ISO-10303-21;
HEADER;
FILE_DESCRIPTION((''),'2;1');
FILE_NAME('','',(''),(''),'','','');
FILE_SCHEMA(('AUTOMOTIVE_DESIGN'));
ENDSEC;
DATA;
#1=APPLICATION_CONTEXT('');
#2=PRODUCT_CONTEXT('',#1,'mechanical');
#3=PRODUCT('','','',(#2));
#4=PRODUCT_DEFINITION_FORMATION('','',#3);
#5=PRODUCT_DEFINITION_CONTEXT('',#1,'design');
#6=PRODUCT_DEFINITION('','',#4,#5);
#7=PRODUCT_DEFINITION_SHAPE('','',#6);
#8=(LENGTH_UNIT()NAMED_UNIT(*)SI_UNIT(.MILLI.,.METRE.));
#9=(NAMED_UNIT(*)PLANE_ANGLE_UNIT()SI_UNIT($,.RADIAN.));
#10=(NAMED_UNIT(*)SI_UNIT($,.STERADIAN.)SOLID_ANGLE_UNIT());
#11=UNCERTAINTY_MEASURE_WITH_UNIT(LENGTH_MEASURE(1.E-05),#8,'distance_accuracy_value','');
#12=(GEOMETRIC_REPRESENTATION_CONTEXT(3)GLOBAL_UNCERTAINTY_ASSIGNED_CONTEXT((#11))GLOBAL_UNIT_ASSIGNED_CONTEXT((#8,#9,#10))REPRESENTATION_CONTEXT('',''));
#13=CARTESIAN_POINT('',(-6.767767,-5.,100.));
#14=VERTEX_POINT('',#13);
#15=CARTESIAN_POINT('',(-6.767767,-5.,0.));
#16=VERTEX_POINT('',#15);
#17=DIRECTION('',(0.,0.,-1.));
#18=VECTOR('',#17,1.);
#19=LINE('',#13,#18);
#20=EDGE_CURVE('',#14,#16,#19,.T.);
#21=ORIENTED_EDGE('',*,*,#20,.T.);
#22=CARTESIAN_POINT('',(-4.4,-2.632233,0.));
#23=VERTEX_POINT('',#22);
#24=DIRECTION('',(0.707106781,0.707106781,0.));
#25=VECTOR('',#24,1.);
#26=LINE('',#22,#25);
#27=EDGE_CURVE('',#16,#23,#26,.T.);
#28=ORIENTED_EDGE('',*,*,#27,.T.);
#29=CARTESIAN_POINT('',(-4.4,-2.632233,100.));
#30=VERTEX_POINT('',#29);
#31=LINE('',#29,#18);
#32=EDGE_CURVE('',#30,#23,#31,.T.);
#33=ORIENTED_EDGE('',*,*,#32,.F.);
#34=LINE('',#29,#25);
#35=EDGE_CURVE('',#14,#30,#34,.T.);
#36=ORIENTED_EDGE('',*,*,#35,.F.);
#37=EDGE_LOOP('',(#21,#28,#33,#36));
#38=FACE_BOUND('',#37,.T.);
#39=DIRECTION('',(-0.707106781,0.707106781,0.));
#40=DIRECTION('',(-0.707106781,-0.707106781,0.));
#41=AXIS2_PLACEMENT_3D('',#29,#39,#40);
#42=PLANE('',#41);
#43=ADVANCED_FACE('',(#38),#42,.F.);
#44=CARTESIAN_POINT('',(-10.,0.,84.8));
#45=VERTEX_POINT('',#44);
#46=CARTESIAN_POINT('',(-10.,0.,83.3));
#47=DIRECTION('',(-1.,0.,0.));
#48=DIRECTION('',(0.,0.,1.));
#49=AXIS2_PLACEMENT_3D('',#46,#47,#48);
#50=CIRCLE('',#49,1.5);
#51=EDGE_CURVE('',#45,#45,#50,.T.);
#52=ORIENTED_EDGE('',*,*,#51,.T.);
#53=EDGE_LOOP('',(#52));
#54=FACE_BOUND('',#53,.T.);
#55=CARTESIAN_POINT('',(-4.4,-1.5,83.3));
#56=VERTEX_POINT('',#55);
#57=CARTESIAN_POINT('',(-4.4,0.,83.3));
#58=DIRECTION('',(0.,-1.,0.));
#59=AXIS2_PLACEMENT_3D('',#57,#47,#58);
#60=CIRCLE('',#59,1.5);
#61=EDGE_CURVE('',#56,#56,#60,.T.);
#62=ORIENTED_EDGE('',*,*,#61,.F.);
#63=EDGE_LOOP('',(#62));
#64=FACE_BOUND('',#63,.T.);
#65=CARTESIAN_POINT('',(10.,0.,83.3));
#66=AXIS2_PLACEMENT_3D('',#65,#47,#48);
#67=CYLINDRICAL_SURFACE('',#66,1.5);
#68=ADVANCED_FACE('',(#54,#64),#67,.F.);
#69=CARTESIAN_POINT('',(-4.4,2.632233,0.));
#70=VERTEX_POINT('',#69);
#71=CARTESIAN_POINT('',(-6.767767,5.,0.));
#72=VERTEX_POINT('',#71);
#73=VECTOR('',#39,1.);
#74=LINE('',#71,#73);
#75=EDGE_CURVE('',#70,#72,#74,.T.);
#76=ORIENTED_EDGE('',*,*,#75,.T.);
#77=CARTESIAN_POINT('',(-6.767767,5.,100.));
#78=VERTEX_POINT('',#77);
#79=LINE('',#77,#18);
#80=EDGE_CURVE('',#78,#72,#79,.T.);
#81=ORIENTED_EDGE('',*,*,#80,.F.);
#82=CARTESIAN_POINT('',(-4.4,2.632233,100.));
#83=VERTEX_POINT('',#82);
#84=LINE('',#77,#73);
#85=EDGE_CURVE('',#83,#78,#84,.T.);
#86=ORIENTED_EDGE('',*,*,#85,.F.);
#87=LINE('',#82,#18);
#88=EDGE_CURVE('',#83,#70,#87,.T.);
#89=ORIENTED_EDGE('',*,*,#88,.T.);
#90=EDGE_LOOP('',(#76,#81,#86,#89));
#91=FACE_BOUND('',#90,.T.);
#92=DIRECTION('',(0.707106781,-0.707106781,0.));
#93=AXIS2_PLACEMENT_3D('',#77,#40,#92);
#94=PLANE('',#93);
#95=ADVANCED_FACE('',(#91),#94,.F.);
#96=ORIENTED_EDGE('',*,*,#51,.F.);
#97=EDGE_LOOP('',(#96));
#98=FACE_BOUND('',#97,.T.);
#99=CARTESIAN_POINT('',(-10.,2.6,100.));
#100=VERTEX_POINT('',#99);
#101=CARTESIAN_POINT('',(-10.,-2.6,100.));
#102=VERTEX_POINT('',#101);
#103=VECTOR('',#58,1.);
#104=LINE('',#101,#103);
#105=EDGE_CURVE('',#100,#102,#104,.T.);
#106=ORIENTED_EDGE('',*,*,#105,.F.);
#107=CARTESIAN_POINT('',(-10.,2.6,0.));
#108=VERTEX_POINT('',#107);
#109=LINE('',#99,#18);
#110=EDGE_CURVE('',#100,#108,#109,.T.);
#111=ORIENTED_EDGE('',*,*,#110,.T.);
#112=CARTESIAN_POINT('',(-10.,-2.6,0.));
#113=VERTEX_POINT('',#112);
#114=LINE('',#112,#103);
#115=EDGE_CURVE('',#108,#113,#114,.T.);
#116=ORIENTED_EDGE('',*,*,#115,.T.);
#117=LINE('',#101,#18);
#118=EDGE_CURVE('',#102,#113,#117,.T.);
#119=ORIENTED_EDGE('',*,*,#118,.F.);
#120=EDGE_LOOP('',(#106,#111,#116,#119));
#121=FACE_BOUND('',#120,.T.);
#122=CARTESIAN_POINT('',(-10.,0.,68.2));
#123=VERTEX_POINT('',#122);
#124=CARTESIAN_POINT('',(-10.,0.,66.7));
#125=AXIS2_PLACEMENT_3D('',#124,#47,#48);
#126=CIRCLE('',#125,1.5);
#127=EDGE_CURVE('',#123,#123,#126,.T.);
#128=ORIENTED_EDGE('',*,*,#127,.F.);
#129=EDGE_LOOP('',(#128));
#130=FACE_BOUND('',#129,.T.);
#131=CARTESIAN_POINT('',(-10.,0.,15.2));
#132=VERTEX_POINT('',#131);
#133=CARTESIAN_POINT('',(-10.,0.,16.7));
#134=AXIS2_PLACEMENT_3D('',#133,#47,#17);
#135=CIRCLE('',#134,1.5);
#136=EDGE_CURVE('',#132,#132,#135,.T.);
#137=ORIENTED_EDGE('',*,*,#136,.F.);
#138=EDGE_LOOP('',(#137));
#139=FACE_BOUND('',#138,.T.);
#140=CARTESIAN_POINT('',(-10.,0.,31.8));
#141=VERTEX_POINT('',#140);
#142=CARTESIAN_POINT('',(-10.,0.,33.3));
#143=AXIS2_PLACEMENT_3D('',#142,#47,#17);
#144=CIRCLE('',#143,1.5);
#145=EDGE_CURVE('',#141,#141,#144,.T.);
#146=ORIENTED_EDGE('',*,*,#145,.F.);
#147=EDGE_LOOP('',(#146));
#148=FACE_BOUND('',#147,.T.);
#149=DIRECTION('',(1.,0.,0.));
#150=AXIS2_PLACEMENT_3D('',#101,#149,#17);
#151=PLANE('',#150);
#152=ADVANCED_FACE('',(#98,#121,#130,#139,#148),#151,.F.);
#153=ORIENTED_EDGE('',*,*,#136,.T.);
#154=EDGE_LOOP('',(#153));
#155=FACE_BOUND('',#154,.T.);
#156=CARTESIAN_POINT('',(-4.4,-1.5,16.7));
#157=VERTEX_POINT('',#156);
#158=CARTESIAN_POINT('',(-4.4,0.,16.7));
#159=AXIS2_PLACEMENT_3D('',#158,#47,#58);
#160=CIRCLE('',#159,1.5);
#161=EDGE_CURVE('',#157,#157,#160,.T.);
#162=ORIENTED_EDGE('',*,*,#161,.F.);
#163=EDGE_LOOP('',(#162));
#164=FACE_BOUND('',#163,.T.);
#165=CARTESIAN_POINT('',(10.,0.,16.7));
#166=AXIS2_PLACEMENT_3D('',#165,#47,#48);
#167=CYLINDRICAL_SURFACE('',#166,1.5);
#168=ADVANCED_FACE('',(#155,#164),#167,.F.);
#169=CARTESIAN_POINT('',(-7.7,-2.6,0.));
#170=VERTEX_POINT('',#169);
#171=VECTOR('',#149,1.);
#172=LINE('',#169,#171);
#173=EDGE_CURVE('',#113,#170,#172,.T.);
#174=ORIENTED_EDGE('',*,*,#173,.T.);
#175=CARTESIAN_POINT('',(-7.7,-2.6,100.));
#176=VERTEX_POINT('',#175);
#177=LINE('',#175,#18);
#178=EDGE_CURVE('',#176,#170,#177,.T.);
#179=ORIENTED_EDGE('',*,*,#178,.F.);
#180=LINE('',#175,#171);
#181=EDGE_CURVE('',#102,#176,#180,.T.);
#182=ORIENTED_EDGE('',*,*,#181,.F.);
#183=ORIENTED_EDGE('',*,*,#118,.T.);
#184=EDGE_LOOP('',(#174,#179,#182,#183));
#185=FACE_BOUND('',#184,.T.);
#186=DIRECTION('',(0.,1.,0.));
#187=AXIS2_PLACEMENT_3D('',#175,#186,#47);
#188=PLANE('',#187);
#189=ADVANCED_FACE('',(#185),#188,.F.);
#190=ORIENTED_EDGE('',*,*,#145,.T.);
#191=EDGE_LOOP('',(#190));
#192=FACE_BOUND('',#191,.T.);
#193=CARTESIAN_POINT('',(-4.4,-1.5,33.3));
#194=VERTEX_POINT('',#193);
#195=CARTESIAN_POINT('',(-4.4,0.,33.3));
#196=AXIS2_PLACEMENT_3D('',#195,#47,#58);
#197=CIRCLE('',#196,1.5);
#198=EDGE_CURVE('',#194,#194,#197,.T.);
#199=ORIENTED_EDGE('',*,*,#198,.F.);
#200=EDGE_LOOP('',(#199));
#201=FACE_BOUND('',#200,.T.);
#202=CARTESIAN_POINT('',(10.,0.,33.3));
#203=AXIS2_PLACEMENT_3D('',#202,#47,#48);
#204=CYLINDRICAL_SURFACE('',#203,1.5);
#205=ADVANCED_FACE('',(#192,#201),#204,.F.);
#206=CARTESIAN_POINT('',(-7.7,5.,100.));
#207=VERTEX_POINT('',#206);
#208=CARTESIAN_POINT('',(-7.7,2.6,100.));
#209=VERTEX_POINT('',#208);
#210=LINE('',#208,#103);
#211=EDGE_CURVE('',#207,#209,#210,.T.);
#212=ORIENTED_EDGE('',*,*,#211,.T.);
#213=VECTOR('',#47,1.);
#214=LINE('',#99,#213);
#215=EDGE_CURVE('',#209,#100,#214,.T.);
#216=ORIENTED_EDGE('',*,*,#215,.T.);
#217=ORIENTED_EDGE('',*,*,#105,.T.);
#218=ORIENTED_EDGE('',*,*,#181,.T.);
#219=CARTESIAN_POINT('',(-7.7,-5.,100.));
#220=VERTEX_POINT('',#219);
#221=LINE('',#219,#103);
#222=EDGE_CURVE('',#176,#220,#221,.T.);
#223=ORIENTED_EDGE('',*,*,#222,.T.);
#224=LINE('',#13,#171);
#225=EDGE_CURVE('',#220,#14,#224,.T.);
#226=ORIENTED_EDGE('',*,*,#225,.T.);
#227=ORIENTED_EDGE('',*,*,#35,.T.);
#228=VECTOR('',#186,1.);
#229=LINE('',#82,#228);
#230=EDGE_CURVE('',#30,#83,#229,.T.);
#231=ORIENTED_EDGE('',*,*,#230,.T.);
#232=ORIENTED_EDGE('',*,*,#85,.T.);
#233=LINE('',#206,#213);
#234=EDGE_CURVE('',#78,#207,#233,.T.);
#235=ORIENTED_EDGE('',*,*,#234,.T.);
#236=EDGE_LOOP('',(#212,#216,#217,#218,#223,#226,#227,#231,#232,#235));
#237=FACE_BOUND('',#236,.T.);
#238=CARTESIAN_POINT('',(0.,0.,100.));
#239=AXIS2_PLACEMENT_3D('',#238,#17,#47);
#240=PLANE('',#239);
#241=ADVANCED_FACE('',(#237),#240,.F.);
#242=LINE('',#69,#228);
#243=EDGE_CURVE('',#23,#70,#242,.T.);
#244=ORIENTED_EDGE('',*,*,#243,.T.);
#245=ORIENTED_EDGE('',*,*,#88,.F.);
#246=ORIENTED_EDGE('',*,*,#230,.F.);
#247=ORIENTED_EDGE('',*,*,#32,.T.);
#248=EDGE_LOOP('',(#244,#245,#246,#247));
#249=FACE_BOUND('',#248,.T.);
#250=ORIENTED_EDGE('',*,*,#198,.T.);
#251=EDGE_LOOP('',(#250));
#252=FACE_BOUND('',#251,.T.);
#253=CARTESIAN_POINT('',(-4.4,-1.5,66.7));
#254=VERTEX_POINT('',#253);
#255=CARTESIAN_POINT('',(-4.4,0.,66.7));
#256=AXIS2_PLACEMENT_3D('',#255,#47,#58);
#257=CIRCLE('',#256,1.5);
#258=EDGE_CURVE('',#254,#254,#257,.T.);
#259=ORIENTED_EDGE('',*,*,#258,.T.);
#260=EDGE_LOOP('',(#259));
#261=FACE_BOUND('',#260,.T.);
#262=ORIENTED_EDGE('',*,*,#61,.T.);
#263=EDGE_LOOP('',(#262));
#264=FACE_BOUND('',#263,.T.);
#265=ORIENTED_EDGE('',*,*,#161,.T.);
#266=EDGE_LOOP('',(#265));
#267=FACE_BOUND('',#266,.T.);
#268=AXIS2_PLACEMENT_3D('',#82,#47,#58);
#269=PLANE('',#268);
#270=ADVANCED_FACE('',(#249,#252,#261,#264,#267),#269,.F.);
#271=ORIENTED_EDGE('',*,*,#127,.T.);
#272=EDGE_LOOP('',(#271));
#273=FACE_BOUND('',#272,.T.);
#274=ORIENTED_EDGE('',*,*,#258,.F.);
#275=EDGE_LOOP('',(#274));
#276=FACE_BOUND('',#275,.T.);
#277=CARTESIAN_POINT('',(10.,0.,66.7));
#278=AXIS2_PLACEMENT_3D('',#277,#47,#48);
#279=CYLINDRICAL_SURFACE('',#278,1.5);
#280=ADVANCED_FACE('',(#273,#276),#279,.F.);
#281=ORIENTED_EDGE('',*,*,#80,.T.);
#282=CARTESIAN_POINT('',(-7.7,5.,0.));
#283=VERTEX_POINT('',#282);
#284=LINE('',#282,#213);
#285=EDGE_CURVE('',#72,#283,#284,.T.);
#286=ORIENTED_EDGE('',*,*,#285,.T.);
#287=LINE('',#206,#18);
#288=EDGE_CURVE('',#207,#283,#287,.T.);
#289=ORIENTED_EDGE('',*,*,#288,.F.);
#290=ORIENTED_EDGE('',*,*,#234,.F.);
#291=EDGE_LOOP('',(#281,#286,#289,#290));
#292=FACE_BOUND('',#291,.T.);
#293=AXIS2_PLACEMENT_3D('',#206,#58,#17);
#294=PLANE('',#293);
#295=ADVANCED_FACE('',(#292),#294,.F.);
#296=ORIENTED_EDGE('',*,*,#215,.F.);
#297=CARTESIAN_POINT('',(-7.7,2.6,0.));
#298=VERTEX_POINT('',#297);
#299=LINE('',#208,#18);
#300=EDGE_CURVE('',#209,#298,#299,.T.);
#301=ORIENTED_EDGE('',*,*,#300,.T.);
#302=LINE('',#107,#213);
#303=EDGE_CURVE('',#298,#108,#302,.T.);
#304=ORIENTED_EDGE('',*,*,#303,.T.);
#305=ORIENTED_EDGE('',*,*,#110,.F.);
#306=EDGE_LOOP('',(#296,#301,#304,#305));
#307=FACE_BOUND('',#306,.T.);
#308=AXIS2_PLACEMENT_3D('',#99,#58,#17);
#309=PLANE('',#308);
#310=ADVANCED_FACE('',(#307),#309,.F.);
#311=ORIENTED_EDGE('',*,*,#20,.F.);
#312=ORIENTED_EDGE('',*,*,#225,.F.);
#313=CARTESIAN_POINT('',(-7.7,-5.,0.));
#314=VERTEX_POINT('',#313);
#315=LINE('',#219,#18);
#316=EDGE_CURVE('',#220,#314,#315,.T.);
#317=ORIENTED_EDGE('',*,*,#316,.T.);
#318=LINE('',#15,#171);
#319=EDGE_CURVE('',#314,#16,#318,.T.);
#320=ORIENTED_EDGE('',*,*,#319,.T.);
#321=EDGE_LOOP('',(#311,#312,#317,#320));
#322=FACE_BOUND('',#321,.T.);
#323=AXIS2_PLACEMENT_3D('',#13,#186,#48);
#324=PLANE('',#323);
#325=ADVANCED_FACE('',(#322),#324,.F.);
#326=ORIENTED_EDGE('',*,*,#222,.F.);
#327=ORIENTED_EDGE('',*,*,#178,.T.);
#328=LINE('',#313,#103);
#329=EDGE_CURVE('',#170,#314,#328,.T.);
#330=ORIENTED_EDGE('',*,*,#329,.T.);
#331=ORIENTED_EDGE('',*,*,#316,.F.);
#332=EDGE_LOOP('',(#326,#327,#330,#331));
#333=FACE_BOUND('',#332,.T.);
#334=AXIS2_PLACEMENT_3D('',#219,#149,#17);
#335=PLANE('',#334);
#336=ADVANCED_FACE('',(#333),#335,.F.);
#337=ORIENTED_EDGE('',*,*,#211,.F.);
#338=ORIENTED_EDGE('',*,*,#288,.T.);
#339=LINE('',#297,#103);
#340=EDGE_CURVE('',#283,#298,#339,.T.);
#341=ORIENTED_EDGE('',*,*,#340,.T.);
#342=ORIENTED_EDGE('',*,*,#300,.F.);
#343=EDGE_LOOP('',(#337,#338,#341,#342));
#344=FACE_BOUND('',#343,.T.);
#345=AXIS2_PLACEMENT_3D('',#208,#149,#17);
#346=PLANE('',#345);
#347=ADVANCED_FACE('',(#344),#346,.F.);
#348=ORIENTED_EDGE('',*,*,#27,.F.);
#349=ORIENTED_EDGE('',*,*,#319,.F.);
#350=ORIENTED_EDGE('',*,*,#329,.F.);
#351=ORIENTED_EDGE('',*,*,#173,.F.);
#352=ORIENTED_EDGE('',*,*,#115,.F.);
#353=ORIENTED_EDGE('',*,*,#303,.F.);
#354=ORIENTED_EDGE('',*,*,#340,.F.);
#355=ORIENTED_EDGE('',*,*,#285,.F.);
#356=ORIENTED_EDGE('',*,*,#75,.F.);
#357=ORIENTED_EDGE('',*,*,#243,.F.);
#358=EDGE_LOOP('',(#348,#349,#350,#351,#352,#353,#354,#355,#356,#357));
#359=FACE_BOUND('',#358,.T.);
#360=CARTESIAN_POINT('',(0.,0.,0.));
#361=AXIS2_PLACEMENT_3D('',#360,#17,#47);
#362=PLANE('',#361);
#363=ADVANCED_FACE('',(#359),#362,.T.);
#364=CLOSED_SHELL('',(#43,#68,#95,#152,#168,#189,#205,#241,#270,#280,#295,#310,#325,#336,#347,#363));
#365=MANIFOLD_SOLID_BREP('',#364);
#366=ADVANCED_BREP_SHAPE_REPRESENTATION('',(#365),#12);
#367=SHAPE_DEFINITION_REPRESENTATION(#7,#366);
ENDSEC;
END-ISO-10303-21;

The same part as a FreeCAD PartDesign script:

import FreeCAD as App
import Part
import Sketcher
from FreeCAD import Vector


def add_polygon(sketch, points):
    """Adds a closed chain of lines whose ends are joined by coincident constraints."""
    first, n = sketch.GeometryCount, len(points)
    for a, b in zip(points, points[1:] + points[:1]):
        sketch.addGeometry(Part.LineSegment(App.Vector(*a, 0), App.Vector(*b, 0)), False)
    for i in range(n):
        sketch.addConstraint(Sketcher.Constraint("Coincident", first + i, 2, first + (i + 1) % n, 1))

doc = App.newDocument("Part")
body = doc.addObject("PartDesign::Body", "Body")

# Sketch on XY plane
sketch1 = body.newObject("Sketcher::SketchObject", "Sketch")
sketch1.AttachmentSupport = (doc.getObject("XY_Plane"), [""])
sketch1.MapMode = "FlatFace"
add_polygon(sketch1, [(-7.7, 2.6), (-10, 2.6), (-10, -2.6), (-7.7, -2.6), (-7.7, -5), (-6.8, -5), (-4.4, -2.6), (-4.4, 2.6), (-6.8, 5), (-7.7, 5)])  # lines 0-9
sketch1.addConstraint([
    Sketcher.Constraint("Horizontal", 0),
    Sketcher.Constraint("Vertical", 1),
    Sketcher.Constraint("Horizontal", 2),
    Sketcher.Constraint("Vertical", 3),
    Sketcher.Constraint("Horizontal", 4),
    Sketcher.Constraint("Vertical", 6),
    Sketcher.Constraint("Horizontal", 8),
    Sketcher.Constraint("Vertical", 9),
    Sketcher.Constraint("Symmetric", 4, 2, 7, 2, -1),
    Sketcher.Constraint("Symmetric", 2, 2, 9, 2, -1),
    Sketcher.Constraint("Perpendicular", 5, 7),
    Sketcher.Constraint("Equal", 5, 7),
    Sketcher.Constraint("DistanceX", 0, 2, 0, 1, 2.3),
    Sketcher.Constraint("DistanceY", 1, 2, 1, 1, 5.2),
    Sketcher.Constraint("DistanceY", 3, 2, 3, 1, 2.4),
    Sketcher.Constraint("DistanceX", 0, 2, -1, 1, 10.0),
    Sketcher.Constraint("DistanceX", 5, 2, -1, 1, 4.4),
    Sketcher.Constraint("Distance", 5, 3.348528),
])
pad1 = body.newObject("PartDesign::Pad", "Pad")
pad1.Profile = sketch1
pad1.Length = 100

# Sketch on YZ plane
sketch2 = body.newObject("Sketcher::SketchObject", "Sketch001")
sketch2.AttachmentSupport = (doc.getObject("YZ_Plane"), [""])
sketch2.MapMode = "FlatFace"
sketch2.AttachmentOffset = App.Placement(Vector(0, 0, -10), App.Rotation())
sketch2.addGeometry([
    Part.Circle(Vector(0, 83.3, 0), Vector(0, 0, 1), 1.5),
    Part.Circle(Vector(0, 66.7, 0), Vector(0, 0, 1), 1.5),
    Part.Circle(Vector(0, 16.7, 0), Vector(0, 0, 1), 1.5),
    Part.Circle(Vector(0, 33.3, 0), Vector(0, 0, 1), 1.5),
], False)
sketch2.addConstraint([
    Sketcher.Constraint("Equal", 0, 1),
    Sketcher.Constraint("Equal", 1, 2),
    Sketcher.Constraint("Equal", 2, 3),
    Sketcher.Constraint("PointOnObject", 0, 3, -2),
    Sketcher.Constraint("PointOnObject", 1, 3, -2),
    Sketcher.Constraint("PointOnObject", 2, 3, -2),
    Sketcher.Constraint("PointOnObject", 3, 3, -2),
    Sketcher.Constraint("Diameter", 0, 3.0),
    Sketcher.Constraint("DistanceY", 2, 3, 1, 3, 50.0),
    Sketcher.Constraint("DistanceY", 3, 3, 0, 3, 50.0),
    Sketcher.Constraint("DistanceY", -1, 1, 0, 3, 83.3),
    Sketcher.Constraint("DistanceY", -1, 1, 1, 3, 66.7),
])
pocket1 = body.newObject("PartDesign::Pocket", "Pocket")
pocket1.Profile = sketch2
pocket1.Length = 20
pocket1.Reversed = True

doc.recompute()
